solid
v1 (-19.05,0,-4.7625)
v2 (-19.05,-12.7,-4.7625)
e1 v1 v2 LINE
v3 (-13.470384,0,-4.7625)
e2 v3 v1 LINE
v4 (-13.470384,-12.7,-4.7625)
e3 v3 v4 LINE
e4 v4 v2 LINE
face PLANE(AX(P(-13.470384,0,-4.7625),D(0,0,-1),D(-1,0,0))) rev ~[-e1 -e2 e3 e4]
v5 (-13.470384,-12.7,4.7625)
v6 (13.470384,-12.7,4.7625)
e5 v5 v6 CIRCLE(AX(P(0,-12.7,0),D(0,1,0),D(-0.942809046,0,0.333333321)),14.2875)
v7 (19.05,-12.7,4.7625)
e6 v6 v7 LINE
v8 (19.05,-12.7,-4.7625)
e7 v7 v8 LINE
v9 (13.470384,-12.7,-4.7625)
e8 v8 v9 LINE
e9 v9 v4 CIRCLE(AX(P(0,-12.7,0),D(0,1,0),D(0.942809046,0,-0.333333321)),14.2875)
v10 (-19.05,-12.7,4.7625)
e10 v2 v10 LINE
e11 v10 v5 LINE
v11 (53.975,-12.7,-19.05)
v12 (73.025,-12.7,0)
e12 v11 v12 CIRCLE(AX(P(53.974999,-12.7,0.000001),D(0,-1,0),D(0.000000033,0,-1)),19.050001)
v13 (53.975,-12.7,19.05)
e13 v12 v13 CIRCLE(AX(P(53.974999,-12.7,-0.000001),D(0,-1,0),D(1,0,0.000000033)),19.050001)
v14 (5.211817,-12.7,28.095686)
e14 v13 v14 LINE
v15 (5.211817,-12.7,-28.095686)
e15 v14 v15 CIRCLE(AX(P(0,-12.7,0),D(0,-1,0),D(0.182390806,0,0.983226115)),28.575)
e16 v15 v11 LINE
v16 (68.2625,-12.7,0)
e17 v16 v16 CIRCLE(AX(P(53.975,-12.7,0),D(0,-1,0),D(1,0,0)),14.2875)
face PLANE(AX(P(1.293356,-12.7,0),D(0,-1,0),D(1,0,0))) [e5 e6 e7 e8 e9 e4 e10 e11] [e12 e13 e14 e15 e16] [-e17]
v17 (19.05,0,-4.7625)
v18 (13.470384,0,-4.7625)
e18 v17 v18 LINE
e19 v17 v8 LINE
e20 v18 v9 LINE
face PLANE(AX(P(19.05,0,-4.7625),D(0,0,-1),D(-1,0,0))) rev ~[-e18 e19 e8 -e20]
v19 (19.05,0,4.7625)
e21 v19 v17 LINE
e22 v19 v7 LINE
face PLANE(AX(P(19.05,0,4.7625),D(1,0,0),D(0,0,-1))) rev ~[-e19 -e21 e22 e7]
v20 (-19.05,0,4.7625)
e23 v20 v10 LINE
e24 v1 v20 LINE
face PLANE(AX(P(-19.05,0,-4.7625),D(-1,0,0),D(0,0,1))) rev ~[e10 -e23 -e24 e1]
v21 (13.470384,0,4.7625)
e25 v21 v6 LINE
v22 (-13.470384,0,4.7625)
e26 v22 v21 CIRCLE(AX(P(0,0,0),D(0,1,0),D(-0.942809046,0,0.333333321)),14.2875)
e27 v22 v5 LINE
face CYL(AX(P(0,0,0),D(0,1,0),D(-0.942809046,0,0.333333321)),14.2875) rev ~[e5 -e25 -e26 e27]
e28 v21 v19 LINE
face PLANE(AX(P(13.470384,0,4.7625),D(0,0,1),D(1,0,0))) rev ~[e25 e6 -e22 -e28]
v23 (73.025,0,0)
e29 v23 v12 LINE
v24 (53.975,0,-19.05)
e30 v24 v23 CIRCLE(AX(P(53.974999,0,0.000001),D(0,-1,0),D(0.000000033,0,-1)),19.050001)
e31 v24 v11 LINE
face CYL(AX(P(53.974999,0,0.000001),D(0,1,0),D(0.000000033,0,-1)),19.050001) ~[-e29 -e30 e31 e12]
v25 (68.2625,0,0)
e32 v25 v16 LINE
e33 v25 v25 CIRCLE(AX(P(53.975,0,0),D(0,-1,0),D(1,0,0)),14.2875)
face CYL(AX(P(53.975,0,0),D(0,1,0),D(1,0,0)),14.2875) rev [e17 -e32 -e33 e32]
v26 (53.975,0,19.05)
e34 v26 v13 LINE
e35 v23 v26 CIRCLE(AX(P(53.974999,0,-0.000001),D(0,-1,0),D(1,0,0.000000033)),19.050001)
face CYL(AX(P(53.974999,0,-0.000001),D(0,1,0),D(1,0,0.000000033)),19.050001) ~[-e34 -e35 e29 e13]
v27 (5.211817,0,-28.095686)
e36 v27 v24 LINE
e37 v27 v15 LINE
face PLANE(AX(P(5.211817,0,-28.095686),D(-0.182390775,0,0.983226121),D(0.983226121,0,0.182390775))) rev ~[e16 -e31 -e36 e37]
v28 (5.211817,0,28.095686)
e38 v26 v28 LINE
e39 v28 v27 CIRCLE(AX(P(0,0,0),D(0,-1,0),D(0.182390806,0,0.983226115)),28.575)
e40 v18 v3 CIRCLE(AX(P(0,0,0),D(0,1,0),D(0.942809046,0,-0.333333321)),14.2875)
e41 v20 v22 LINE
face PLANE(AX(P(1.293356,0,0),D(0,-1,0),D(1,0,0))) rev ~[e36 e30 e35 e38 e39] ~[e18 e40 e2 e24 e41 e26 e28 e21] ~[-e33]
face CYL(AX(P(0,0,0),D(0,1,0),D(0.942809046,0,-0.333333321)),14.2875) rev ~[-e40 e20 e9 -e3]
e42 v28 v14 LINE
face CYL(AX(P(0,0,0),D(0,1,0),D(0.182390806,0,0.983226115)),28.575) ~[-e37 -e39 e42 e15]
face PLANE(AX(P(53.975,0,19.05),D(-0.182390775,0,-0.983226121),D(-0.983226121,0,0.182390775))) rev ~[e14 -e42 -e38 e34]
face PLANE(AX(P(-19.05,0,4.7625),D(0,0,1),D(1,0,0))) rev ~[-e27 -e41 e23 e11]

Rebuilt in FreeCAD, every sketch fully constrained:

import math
import FreeCAD as App
import Part
import Sketcher
from FreeCAD import Vector
Q = App.Units.Quantity

doc = App.newDocument("Part")
params = doc.addObject("Spreadsheet::Sheet", "Params")
for row, (alias, value) in enumerate([
    ("sketch1_radius", "0.75 in"),
    ("sketch1_diameter", "1.125 in"),
    ("sketch1_radius2", "1.125 in"),
    ("sketch1_height", "0.375 in"),
    ("pad1_length", "0.5 in"),
], start=1):
    params.set(f"A{row}", alias)
    params.set(f"B{row}", "=" + value)
    params.setAlias(f"B{row}", alias)

body = doc.addObject("PartDesign::Body", "Body")

# Sketch on XZ plane
sketch1 = body.newObject("Sketcher::SketchObject", "Sketch")
sketch1.AttachmentSupport = (doc.getObject("XZ_Plane"), [""])
sketch1.MapMode = "FlatFace"
sketch1.addGeometry([
    Part.ArcOfCircle(Part.Circle(Vector(0, 0, 0), Vector(0, 0, 1), 29), math.radians(79), math.radians(281)),  # 0
    Part.LineSegment(Vector(5, -28, 0), Vector(54, -19, 0)),  # 1
    Part.ArcOfCircle(Part.Circle(Vector(54, 0, 0), Vector(0, 0, 1), 19), math.radians(-90), math.radians(0)),  # 2
    Part.ArcOfCircle(Part.Circle(Vector(54, 0, 0), Vector(0, 0, 1), 19), math.radians(0), math.radians(90)),  # 3
    Part.LineSegment(Vector(54, 19, 0), Vector(5, 28, 0)),  # 4
    Part.LineSegment(Vector(-19, 5, 0), Vector(-13, 5, 0)),  # 5
    Part.ArcOfCircle(Part.Circle(Vector(0, 0, 0), Vector(0, 0, 1), 14), math.radians(19), math.radians(161)),  # 6
    Part.LineSegment(Vector(13, 5, 0), Vector(19, 5, 0)),  # 7
    Part.LineSegment(Vector(19, 5, 0), Vector(19, -5, 0)),  # 8
    Part.LineSegment(Vector(19, -5, 0), Vector(13, -5, 0)),  # 9
    Part.ArcOfCircle(Part.Circle(Vector(0, 0, 0), Vector(0, 0, 1), 14), math.radians(-161), math.radians(-19)),  # 10
    Part.LineSegment(Vector(-13, -5, 0), Vector(-19, -5, 0)),  # 11
    Part.LineSegment(Vector(-19, -5, 0), Vector(-19, 5, 0)),  # 12
    Part.Circle(Vector(54, 0, 0), Vector(0, 0, 1), 14),  # 13
], False)
sketch1.addConstraint([
    Sketcher.Constraint("Tangent", 0, 2, 1, 1),
    Sketcher.Constraint("Coincident", 1, 2, 2, 1),
    Sketcher.Constraint("Tangent", 2, 2, 3, 1),
    Sketcher.Constraint("Coincident", 3, 2, 4, 1),
    Sketcher.Constraint("Tangent", 4, 2, 0, 1),
    Sketcher.Constraint("Coincident", 5, 2, 6, 2),
    Sketcher.Constraint("Coincident", 6, 1, 7, 1),
    Sketcher.Constraint("Coincident", 7, 2, 8, 1),
    Sketcher.Constraint("Coincident", 8, 2, 9, 1),
    Sketcher.Constraint("Coincident", 9, 2, 10, 2),
    Sketcher.Constraint("Coincident", 10, 1, 11, 1),
    Sketcher.Constraint("Coincident", 11, 2, 12, 1),
    Sketcher.Constraint("Coincident", 12, 2, 5, 1),
    Sketcher.Constraint("Horizontal", 5),
    Sketcher.Constraint("Horizontal", 7),
    Sketcher.Constraint("Vertical", 8),
    Sketcher.Constraint("Horizontal", 9),
    Sketcher.Constraint("Horizontal", 11),
    Sketcher.Constraint("Vertical", 12),
    Sketcher.Constraint("Coincident", 0, 3, -1, 1),
    Sketcher.Constraint("Coincident", 6, 3, -1, 1),
    Sketcher.Constraint("Coincident", 10, 3, -1, 1),
    Sketcher.Constraint("Coincident", 13, 3, 2, 3),
    Sketcher.Constraint("Equal", 2, 3),
    Sketcher.Constraint("Equal", 6, 10),
    Sketcher.Constraint("Equal", 10, 13),
    Sketcher.Constraint("Symmetric", 7, 2, 11, 2, -1, 1),
    Sketcher.Constraint("Symmetric", 1, 2, 3, 2, -1),
    Sketcher.Constraint("PointOnObject", 2, 2, -1),
    Sketcher.Constraint("Horizontal", 5, 2, 6, 1),
    Sketcher.Constraint("Horizontal", 9, 2, 10, 1),
    Sketcher.Constraint("Vertical", 13, 3, 1, 2),
    Sketcher.Constraint("Radius", 2, Q("0.75 in")),
    Sketcher.Constraint("Diameter", 13, Q("1.125 in")),
    Sketcher.Constraint("Radius", 0, Q("1.125 in")),
    Sketcher.Constraint("DistanceY", 8, 2, 8, 1, Q("0.375 in")),
    Sketcher.Constraint("DistanceX", -1, 1, 7, 2, Q("0.75 in")),
    Sketcher.Constraint("DistanceX", -1, 1, 2, 3, Q("2.125 in")),
])
sketch1.setExpression("Constraints[32]", "Params.sketch1_radius")
sketch1.setExpression("Constraints[33]", "Params.sketch1_diameter")
sketch1.setExpression("Constraints[34]", "Params.sketch1_radius2")
sketch1.setExpression("Constraints[35]", "Params.sketch1_height")
pad1 = body.newObject("PartDesign::Pad", "Pad")
pad1.Profile = sketch1
pad1.setExpression("Length", "Params.pad1_length")

doc.recompute()
